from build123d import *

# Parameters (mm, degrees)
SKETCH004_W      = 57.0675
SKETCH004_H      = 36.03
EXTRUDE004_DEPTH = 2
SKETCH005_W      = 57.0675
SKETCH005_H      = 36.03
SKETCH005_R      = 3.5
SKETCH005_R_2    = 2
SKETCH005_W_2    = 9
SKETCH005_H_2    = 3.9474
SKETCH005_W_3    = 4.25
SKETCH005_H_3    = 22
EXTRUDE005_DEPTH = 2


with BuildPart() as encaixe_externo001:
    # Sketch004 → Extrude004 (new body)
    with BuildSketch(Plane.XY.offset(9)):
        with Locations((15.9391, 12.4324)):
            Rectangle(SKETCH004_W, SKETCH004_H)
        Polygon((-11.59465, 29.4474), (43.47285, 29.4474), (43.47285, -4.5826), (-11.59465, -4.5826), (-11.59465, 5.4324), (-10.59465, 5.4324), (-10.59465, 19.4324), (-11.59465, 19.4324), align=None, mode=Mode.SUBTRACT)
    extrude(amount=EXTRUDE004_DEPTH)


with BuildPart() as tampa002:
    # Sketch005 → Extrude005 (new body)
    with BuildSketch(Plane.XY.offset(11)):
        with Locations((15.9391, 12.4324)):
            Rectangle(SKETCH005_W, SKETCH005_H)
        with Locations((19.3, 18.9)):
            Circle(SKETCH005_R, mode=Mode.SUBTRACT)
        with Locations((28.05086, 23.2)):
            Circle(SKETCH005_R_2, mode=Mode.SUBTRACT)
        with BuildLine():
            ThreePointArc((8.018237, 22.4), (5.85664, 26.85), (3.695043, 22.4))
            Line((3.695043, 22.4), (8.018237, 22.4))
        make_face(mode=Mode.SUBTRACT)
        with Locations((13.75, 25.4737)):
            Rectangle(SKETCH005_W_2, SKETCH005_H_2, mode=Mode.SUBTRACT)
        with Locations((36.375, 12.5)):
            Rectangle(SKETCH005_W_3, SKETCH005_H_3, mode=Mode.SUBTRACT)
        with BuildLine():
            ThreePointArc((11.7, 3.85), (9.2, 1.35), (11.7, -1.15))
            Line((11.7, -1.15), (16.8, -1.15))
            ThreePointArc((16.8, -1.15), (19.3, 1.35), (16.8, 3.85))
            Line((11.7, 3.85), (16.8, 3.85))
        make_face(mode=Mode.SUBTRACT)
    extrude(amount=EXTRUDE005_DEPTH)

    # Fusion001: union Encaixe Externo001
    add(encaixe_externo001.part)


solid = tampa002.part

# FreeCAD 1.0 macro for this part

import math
import FreeCAD as App
import Part
import Sketcher
from FreeCAD import Vector


def add_polygon(sketch, points):
    """Adds a closed chain of lines whose ends are joined by coincident constraints."""
    first, n = sketch.GeometryCount, len(points)
    for a, b in zip(points, points[1:] + points[:1]):
        sketch.addGeometry(Part.LineSegment(App.Vector(*a, 0), App.Vector(*b, 0)), False)
    for i in range(n):
        sketch.addConstraint(Sketcher.Constraint("Coincident", first + i, 2, first + (i + 1) % n, 1))

doc = App.newDocument("Part")
body = doc.addObject("PartDesign::Body", "Body")

# Sketch on XY plane
sketch1 = body.newObject("Sketcher::SketchObject", "Sketch")
sketch1.AttachmentSupport = (doc.getObject("XY_Plane"), [""])
sketch1.MapMode = "FlatFace"
sketch1.AttachmentOffset = App.Placement(Vector(0, 0, 9), App.Rotation())
add_polygon(sketch1, [(-12.6, 30.4), (-12.6, -5.6), (44.5, -5.6), (44.5, 30.4)])  # lines 0-3
add_polygon(sketch1, [(-11.6, 19.4), (-11.6, 29.4), (43.5, 29.4), (43.5, -4.6), (-11.6, -4.6), (-11.6, 5.4), (-10.6, 5.4), (-10.6, 19.4)])  # lines 4-11
sketch1.addConstraint([
    Sketcher.Constraint("Vertical", 0),
    Sketcher.Constraint("Horizontal", 1),
    Sketcher.Constraint("Vertical", 2),
    Sketcher.Constraint("Horizontal", 3),
    Sketcher.Constraint("Vertical", 4),
    Sketcher.Constraint("Horizontal", 5),
    Sketcher.Constraint("Vertical", 6),
    Sketcher.Constraint("Horizontal", 7),
    Sketcher.Constraint("Vertical", 8),
    Sketcher.Constraint("Horizontal", 9),
    Sketcher.Constraint("Vertical", 10),
    Sketcher.Constraint("Horizontal", 11),
    Sketcher.Constraint("Vertical", 4, 2, 7, 2),
    Sketcher.Constraint("Equal", 4, 8),
    Sketcher.Constraint("DistanceX", 9, 1, 9, 2, 1.0),
    Sketcher.Constraint("DistanceY", 10, 1, 10, 2, 14.0),
    Sketcher.Constraint("DistanceX", 3, 2, 4, 2, 1.0),
    Sketcher.Constraint("DistanceY", 4, 2, 3, 2, 1.0),
    Sketcher.Constraint("DistanceX", 5, 2, 2, 2, 1.0),
    Sketcher.Constraint("DistanceY", 1, 2, 6, 2, 1.0),
    Sketcher.Constraint("DistanceY", 0, 2, 0, 1, 36.03),
    Sketcher.Constraint("DistanceX", 1, 1, 1, 2, 57.0675),
    Sketcher.Constraint("DistanceY", 0, 2, -1, 1, 5.5826),
    Sketcher.Constraint("DistanceX", 0, 2, -1, 1, 12.59465),
])
pad1 = body.newObject("PartDesign::Pad", "Pad")
pad1.Profile = sketch1
pad1.Length = 2
body2 = doc.addObject("PartDesign::Body", "Body001")

# Sketch on XY plane
sketch2 = body2.newObject("Sketcher::SketchObject", "Sketch001")
sketch2.AttachmentSupport = (doc.getObject("XY_Plane001"), [""])
sketch2.MapMode = "FlatFace"
sketch2.AttachmentOffset = App.Placement(Vector(0, 0, 11), App.Rotation())
add_polygon(sketch2, [(-12.6, 30.4), (-12.6, -5.6), (44.5, -5.6), (44.5, 30.4)])  # lines 0-3
sketch2.addGeometry(Part.ArcOfCircle(Part.Circle(Vector(11.7, 1.4, 0), Vector(0, 0, 1), 2.5), math.radians(90), math.radians(270)), False)  # 4
sketch2.addGeometry(Part.LineSegment(Vector(11.7, 3.9, 0), Vector(16.8, 3.9, 0)), False)  # 5
sketch2.addGeometry(Part.ArcOfCircle(Part.Circle(Vector(16.8, 1.4, 0), Vector(0, 0, 1), 2.5), math.radians(-90), math.radians(90)), False)  # 6
sketch2.addGeometry(Part.LineSegment(Vector(16.8, -1.1, 0), Vector(11.7, -1.1, 0)), False)  # 7
add_polygon(sketch2, [(38.5, 1.5), (34.2, 1.5), (34.2, 23.5), (38.5, 23.5)])  # lines 8-11
sketch2.addGeometry(Part.Circle(Vector(19.3, 18.9, 0), Vector(0, 0, 1), 3.5), False)  # 12
sketch2.addGeometry(Part.ArcOfCircle(Part.Circle(Vector(5.9, 24.1, 0), Vector(0, 0, 1), 2.8), math.radians(-38), math.radians(218)), False)  # 13
sketch2.addGeometry(Part.LineSegment(Vector(8, 22.4, 0), Vector(3.7, 22.4, 0)), False)  # 14
add_polygon(sketch2, [(18.2, 23.5), (9.2, 23.5), (9.2, 27.4), (18.2, 27.4)])  # lines 15-18
sketch2.addGeometry(Part.Circle(Vector(28.1, 23.2, 0), Vector(0, 0, 1), 2), False)  # 19
sketch2.addConstraint([
    Sketcher.Constraint("Tangent", 4, 1, 5, 1),
    Sketcher.Constraint("Tangent", 5, 2, 6, 2),
    Sketcher.Constraint("Tangent", 6, 1, 7, 1),
    Sketcher.Constraint("Tangent", 7, 2, 4, 2),
    Sketcher.Constraint("Coincident", 13, 1, 14, 1),
    Sketcher.Constraint("Coincident", 14, 2, 13, 2),
    Sketcher.Constraint("Vertical", 0),
    Sketcher.Constraint("Horizontal", 1),
    Sketcher.Constraint("Vertical", 2),
    Sketcher.Constraint("Horizontal", 3),
    Sketcher.Constraint("Horizontal", 5),
    Sketcher.Constraint("Horizontal", 7),
    Sketcher.Constraint("Horizontal", 8),
    Sketcher.Constraint("Vertical", 9),
    Sketcher.Constraint("Horizontal", 10),
    Sketcher.Constraint("Vertical", 11),
    Sketcher.Constraint("Horizontal", 14),
    Sketcher.Constraint("Horizontal", 15),
    Sketcher.Constraint("Vertical", 16),
    Sketcher.Constraint("Horizontal", 17),
    Sketcher.Constraint("Vertical", 18),
    Sketcher.Constraint("Horizontal", 10, 2, 15, 2),
    Sketcher.Constraint("Diameter", 12, 7.0),
    Sketcher.Constraint("Diameter", 19, 4.0),
    Sketcher.Constraint("Radius", 4, 2.5),
    Sketcher.Constraint("DistanceX", 15, 2, 15, 1, 9.0),
    Sketcher.Constraint("DistanceY", 9, 1, 9, 2, 22.0),
    Sketcher.Constraint("Radius", 13, 2.75),
    Sketcher.Constraint("DistanceX", 5, 1, 5, 2, 5.1),
    Sketcher.Constraint("DistanceX", 8, 2, 8, 1, 4.25),
    Sketcher.Constraint("DistanceY", 0, 2, 0, 1, 36.03),
    Sketcher.Constraint("DistanceX", -1, 1, 4, 3, 11.7),
    Sketcher.Constraint("DistanceX", -1, 1, 12, 3, 19.3),
    Sketcher.Constraint("DistanceY", -1, 1, 12, 3, 18.9),
    Sketcher.Constraint("DistanceY", -1, 1, 13, 3, 24.1),
    Sketcher.Constraint("DistanceY", -1, 1, 19, 3, 23.2),
    Sketcher.Constraint("DistanceY", -1, 1, 8, 2, 1.5),
    Sketcher.Constraint("DistanceX", -1, 1, 10, 2, 38.5),
    Sketcher.Constraint("DistanceY", -1, 1, 13, 1, 22.4),
    Sketcher.Constraint("DistanceY", -1, 1, 4, 3, 1.35),
    Sketcher.Constraint("DistanceX", -1, 1, 15, 2, 9.25),
    Sketcher.Constraint("DistanceX", 1, 1, 1, 2, 57.0675),
    Sketcher.Constraint("DistanceY", 16, 1, 16, 2, 3.9474),
    Sketcher.Constraint("DistanceY", 0, 2, -1, 1, 5.5826),
    Sketcher.Constraint("DistanceX", -1, 1, 13, 3, 5.85664),
    Sketcher.Constraint("DistanceX", -1, 1, 19, 3, 28.05086),
    Sketcher.Constraint("DistanceX", 0, 2, -1, 1, 12.59465),
])
pad2 = body2.newObject("PartDesign::Pad", "Pad001")
pad2.Profile = sketch2
pad2.Length = 2
doc.recompute()

boolean = body2.newObject("PartDesign::Boolean", "Boolean")
boolean.Type = "Fuse"
boolean.addObjects([body])

doc.recompute()
